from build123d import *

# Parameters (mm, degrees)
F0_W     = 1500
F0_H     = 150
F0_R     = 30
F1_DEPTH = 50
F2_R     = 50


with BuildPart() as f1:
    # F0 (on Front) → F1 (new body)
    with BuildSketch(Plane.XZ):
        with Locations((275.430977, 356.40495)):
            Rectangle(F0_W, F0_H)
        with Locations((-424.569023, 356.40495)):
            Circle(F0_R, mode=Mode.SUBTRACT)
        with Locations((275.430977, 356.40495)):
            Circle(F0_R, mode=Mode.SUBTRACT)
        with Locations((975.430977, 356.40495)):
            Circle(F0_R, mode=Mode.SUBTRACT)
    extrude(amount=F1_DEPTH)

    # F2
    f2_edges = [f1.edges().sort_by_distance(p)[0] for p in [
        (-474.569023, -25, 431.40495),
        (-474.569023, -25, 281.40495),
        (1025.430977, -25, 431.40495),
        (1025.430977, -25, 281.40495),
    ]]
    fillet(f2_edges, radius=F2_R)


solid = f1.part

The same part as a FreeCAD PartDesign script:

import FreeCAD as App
import Part
import Sketcher

V = App.Vector


def edges_at(feature, points):
    """Names of the edges that pass closest to the given points."""
    edges = feature.Shape.Edges
    near = lambda p: min(range(len(edges)), key=lambda i: edges[i].distToShape(Part.Vertex(*p))[0])
    return sorted({f"Edge{near(p) + 1}" for p in points})

doc = App.newDocument("Part")
body = doc.addObject("PartDesign::Body", "Body")

# Sketch on XZ plane
sketch1 = body.newObject("Sketcher::SketchObject", "Sketch")
sketch1.AttachmentSupport = (doc.getObject("XZ_Plane"), [""])
sketch1.MapMode = "FlatFace"
sketch1.addGeometry([
    Part.LineSegment(V(-475, 431, 0), V(-475, 281, 0)),  # 0
    Part.LineSegment(V(-475, 281, 0), V(1025, 281, 0)),  # 1
    Part.LineSegment(V(1025, 281, 0), V(1025, 431, 0)),  # 2
    Part.LineSegment(V(1025, 431, 0), V(-475, 431, 0)),  # 3
    Part.Circle(V(-425, 356, 0), V(0, 0, 1), 30),  # 4
    Part.Circle(V(275, 356, 0), V(0, 0, 1), 30),  # 5
    Part.Circle(V(975, 356, 0), V(0, 0, 1), 30),  # 6
], False)
sketch1.addConstraint([
    Sketcher.Constraint("Coincident", 0, 2, 1, 1),
    Sketcher.Constraint("Coincident", 1, 2, 2, 1),
    Sketcher.Constraint("Coincident", 2, 2, 3, 1),
    Sketcher.Constraint("Coincident", 3, 2, 0, 1),
    Sketcher.Constraint("Vertical", 0),
    Sketcher.Constraint("Horizontal", 1),
    Sketcher.Constraint("Vertical", 2),
    Sketcher.Constraint("Horizontal", 3),
    Sketcher.Constraint("Equal", 4, 5),
    Sketcher.Constraint("Equal", 5, 6),
    Sketcher.Constraint("Horizontal", 4, 3, 5, 3),
    Sketcher.Constraint("Horizontal", 5, 3, 6, 3),
    Sketcher.Constraint("Diameter", 4, 60.0),
    Sketcher.Constraint("DistanceX", 1, 1, 1, 2, 1500.0),
    Sketcher.Constraint("DistanceY", 0, 2, 0, 1, 150.0),
    Sketcher.Constraint("DistanceX", 4, 3, 5, 3, 700.0),
    Sketcher.Constraint("DistanceX", 5, 3, 6, 3, 700.0),
    Sketcher.Constraint("DistanceX", 0, 2, 4, 3, 50.0),
    Sketcher.Constraint("DistanceY", 0, 2, 4, 3, 75.0),
    Sketcher.Constraint("DistanceY", -1, 1, 4, 3, 356.40495),
    Sketcher.Constraint("DistanceX", 4, 3, -1, 1, 424.569023),
])
pad1 = body.newObject("PartDesign::Pad", "Pad")
pad1.Profile = sketch1
pad1.Length = 50
doc.recompute()

fillet = body.newObject("PartDesign::Fillet", "Fillet")
fillet.Base = (pad1, edges_at(pad1, [
    (-474.569, -25, 431.405),
    (-474.569, -25, 281.405),
    (1025.431, -25, 431.405),
    (1025.431, -25, 281.405),
]))
fillet.Radius = 50

doc.recompute()
